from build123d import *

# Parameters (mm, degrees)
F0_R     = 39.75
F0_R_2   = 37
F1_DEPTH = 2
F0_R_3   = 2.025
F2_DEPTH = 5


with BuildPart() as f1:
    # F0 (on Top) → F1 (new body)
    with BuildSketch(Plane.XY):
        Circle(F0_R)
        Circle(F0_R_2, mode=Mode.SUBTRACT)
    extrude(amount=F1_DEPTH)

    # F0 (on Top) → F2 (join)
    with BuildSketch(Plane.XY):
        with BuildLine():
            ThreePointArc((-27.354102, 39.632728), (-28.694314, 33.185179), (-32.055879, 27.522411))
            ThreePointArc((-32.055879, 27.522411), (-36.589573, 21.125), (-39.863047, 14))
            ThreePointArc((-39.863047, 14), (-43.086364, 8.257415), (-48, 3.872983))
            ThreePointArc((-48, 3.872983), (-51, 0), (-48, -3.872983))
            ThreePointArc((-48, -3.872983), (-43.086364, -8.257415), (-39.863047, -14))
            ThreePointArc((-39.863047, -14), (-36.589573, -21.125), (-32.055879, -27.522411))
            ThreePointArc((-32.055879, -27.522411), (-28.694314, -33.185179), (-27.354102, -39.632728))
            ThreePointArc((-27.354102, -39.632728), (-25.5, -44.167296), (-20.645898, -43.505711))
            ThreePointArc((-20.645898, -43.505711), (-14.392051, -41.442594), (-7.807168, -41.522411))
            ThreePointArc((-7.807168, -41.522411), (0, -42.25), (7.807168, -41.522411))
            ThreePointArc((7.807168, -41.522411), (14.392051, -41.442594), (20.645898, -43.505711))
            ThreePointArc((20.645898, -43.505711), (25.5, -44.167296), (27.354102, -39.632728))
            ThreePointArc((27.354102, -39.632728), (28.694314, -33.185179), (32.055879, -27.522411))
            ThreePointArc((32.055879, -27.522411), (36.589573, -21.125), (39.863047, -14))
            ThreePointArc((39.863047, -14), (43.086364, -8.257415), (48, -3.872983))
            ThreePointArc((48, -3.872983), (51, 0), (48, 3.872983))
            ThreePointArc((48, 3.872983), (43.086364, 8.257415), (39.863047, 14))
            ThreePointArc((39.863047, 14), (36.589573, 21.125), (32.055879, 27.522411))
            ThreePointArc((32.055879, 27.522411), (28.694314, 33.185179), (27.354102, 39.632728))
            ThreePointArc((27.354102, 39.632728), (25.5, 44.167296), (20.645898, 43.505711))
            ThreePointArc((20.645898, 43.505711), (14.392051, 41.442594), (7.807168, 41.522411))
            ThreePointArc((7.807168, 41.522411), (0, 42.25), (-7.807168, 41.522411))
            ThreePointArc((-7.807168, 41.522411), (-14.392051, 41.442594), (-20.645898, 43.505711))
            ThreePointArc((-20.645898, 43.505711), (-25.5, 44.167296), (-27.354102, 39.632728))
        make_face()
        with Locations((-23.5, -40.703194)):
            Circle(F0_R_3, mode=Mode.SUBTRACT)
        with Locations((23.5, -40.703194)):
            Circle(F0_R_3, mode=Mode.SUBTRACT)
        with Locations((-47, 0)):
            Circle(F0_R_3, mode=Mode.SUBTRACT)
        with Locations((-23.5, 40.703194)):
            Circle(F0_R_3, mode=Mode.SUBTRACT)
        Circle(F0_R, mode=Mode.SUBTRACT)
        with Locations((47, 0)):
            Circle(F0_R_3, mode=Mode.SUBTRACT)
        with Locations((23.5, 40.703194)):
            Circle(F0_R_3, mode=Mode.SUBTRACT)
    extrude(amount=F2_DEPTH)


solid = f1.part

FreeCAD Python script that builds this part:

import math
import FreeCAD as App
import Part
import Sketcher
from FreeCAD import Vector

doc = App.newDocument("Part")
body = doc.addObject("PartDesign::Body", "Body")

# Sketch on XY plane
sketch1 = doc.addObject("Sketcher::SketchObject", "Sketch")
body.addObject(sketch1)
sketch1.AttachmentSupport = (doc.XY_Plane, [""])
sketch1.MapMode = "FlatFace"
sketch1.addGeometry(Part.Circle(Vector(0, 0, 0), Vector(0, 0, 1), 39.75), False)
sketch1.addGeometry(Part.Circle(Vector(0, 0, 0), Vector(0, 0, 1), 37), False)
sketch1.addConstraint(Sketcher.Constraint("Coincident", 0, 3, -1, 1))
sketch1.addConstraint(Sketcher.Constraint("Coincident", 1, 3, -1, 1))
sketch1.addConstraint(Sketcher.Constraint("Diameter", 1, 74.0))
sketch1.addConstraint(Sketcher.Constraint("Diameter", 0, 79.5))
pad1 = doc.addObject("PartDesign::Pad", "Pad")
body.addObject(pad1)
pad1.Profile = sketch1
pad1.Length = 2

# Sketch on XY plane
sketch2 = doc.addObject("Sketcher::SketchObject", "Sketch001")
body.addObject(sketch2)
sketch2.AttachmentSupport = (doc.XY_Plane, [""])
sketch2.MapMode = "FlatFace"
sketch2.addGeometry(Part.ArcOfCircle(Part.Circle(Vector(-47.338467, 40.423689, 0), Vector(0, 0, 1), 20.000011), math.radians(-40.170438), math.radians(-2.266525)), False)
sketch2.addGeometry(Part.ArcOfCircle(Part.Circle(Vector(0.000014, -0.000009, 0), Vector(0, 0, 1), 42.250016), math.radians(139.351403), math.radians(160.648594)), False)
sketch2.addGeometry(Part.ArcOfCircle(Part.Circle(Vector(-58.67716, 20.784457, 0), Vector(0, 0, 1), 19.999993), math.radians(-57.73349), math.radians(-19.829541)), False)
sketch2.addGeometry(Part.ArcOfCircle(Part.Circle(Vector(-47, 0, 0), Vector(0, 0, 1), 4), math.radians(104.477507), math.radians(255.522493)), False)
sketch2.addGeometry(Part.ArcOfCircle(Part.Circle(Vector(-58.67716, -20.784457, 0), Vector(0, 0, 1), 19.999993), math.radians(19.829541), math.radians(57.73349)), False)
sketch2.addGeometry(Part.ArcOfCircle(Part.Circle(Vector(0.000014, 0.000009, 0), Vector(0, 0, 1), 42.250016), math.radians(-160.648594), math.radians(-139.351403)), False)
sketch2.addGeometry(Part.ArcOfCircle(Part.Circle(Vector(-47.338467, -40.423689, 0), Vector(0, 0, 1), 20.000011), math.radians(2.266525), math.radians(40.170438)), False)
sketch2.addGeometry(Part.ArcOfCircle(Part.Circle(Vector(-23.5, -40.703194, 0), Vector(0, 0, 1), 4), math.radians(164.477509), math.radians(315.522496)), False)
sketch2.addGeometry(Part.ArcOfCircle(Part.Circle(Vector(-11.338709, -61.208153, 0), Vector(0, 0, 1), 20.000005), math.radians(79.829557), math.radians(117.733479)), False)
sketch2.addGeometry(Part.ArcOfCircle(Part.Circle(Vector(0, -0.000009, 0), Vector(0, 0, 1), 42.249991), math.radians(-100.648602), math.radians(-79.351398)), False)
sketch2.addGeometry(Part.ArcOfCircle(Part.Circle(Vector(11.338709, -61.208153, 0), Vector(0, 0, 1), 20.000005), math.radians(62.266521), math.radians(100.170443)), False)
sketch2.addGeometry(Part.ArcOfCircle(Part.Circle(Vector(23.5, -40.703194, 0), Vector(0, 0, 1), 4), math.radians(-135.522496), math.radians(15.522491)), False)
sketch2.addGeometry(Part.ArcOfCircle(Part.Circle(Vector(47.338467, -40.423689, 0), Vector(0, 0, 1), 20.000011), math.radians(139.829562), math.radians(177.733475)), False)
sketch2.addGeometry(Part.ArcOfCircle(Part.Circle(Vector(-0.000014, 0.000009, 0), Vector(0, 0, 1), 42.250016), math.radians(-40.648597), math.radians(-19.351406)), False)
sketch2.addGeometry(Part.ArcOfCircle(Part.Circle(Vector(58.67716, -20.784457, 0), Vector(0, 0, 1), 19.999993), math.radians(122.26651), math.radians(160.170459)), False)
sketch2.addGeometry(Part.ArcOfCircle(Part.Circle(Vector(47, 0, 0), Vector(0, 0, 1), 4), math.radians(-75.522493), math.radians(75.522493)), False)
sketch2.addGeometry(Part.ArcOfCircle(Part.Circle(Vector(58.67716, 20.784457, 0), Vector(0, 0, 1), 19.999993), math.radians(-160.170459), math.radians(-122.26651)), False)
sketch2.addGeometry(Part.ArcOfCircle(Part.Circle(Vector(-0.000014, -0.000009, 0), Vector(0, 0, 1), 42.250016), math.radians(19.351406), math.radians(40.648597)), False)
sketch2.addGeometry(Part.ArcOfCircle(Part.Circle(Vector(47.338467, 40.423689, 0), Vector(0, 0, 1), 20.000011), math.radians(-177.733475), math.radians(-139.829562)), False)
sketch2.addGeometry(Part.ArcOfCircle(Part.Circle(Vector(23.5, 40.703194, 0), Vector(0, 0, 1), 4), math.radians(-15.522491), math.radians(135.522496)), False)
sketch2.addGeometry(Part.ArcOfCircle(Part.Circle(Vector(11.338709, 61.208153, 0), Vector(0, 0, 1), 20.000005), math.radians(-100.170443), math.radians(-62.266521)), False)
sketch2.addGeometry(Part.ArcOfCircle(Part.Circle(Vector(0, 0.000009, 0), Vector(0, 0, 1), 42.249991), math.radians(79.351398), math.radians(100.648602)), False)
sketch2.addGeometry(Part.ArcOfCircle(Part.Circle(Vector(-11.338709, 61.208153, 0), Vector(0, 0, 1), 20.000005), math.radians(-117.733479), math.radians(-79.829557)), False)
sketch2.addGeometry(Part.ArcOfCircle(Part.Circle(Vector(-23.5, 40.703194, 0), Vector(0, 0, 1), 4), math.radians(44.477504), math.radians(195.522491)), False)
sketch2.addGeometry(Part.Circle(Vector(-23.5, -40.703194, 0), Vector(0, 0, 1), 2.025), False)
sketch2.addGeometry(Part.Circle(Vector(23.5, -40.703194, 0), Vector(0, 0, 1), 2.025), False)
sketch2.addGeometry(Part.Circle(Vector(-47, 0, 0), Vector(0, 0, 1), 2.025), False)
sketch2.addGeometry(Part.Circle(Vector(-23.5, 40.703194, 0), Vector(0, 0, 1), 2.025), False)
sketch2.addGeometry(Part.Circle(Vector(0, 0, 0), Vector(0, 0, 1), 39.75), False)
sketch2.addGeometry(Part.Circle(Vector(47, 0, 0), Vector(0, 0, 1), 2.025), False)
sketch2.addGeometry(Part.Circle(Vector(23.5, 40.703194, 0), Vector(0, 0, 1), 2.025), False)
sketch2.addConstraint(Sketcher.Constraint("Coincident", 0, 1, 1, 1))
sketch2.addConstraint(Sketcher.Constraint("Coincident", 1, 2, 2, 2))
sketch2.addConstraint(Sketcher.Constraint("Coincident", 2, 1, 3, 1))
sketch2.addConstraint(Sketcher.Constraint("Coincident", 3, 2, 4, 2))
sketch2.addConstraint(Sketcher.Constraint("Coincident", 4, 1, 5, 1))
sketch2.addConstraint(Sketcher.Constraint("Coincident", 5, 2, 6, 2))
sketch2.addConstraint(Sketcher.Constraint("Coincident", 6, 1, 7, 1))
sketch2.addConstraint(Sketcher.Constraint("Coincident", 7, 2, 8, 2))
sketch2.addConstraint(Sketcher.Constraint("Coincident", 8, 1, 9, 1))
sketch2.addConstraint(Sketcher.Constraint("Coincident", 9, 2, 10, 2))
sketch2.addConstraint(Sketcher.Constraint("Coincident", 10, 1, 11, 1))
sketch2.addConstraint(Sketcher.Constraint("Coincident", 11, 2, 12, 2))
sketch2.addConstraint(Sketcher.Constraint("Coincident", 12, 1, 13, 1))
sketch2.addConstraint(Sketcher.Constraint("Coincident", 13, 2, 14, 2))
sketch2.addConstraint(Sketcher.Constraint("Coincident", 14, 1, 15, 1))
sketch2.addConstraint(Sketcher.Constraint("Coincident", 15, 2, 16, 2))
sketch2.addConstraint(Sketcher.Constraint("Coincident", 16, 1, 17, 1))
sketch2.addConstraint(Sketcher.Constraint("Coincident", 17, 2, 18, 2))
sketch2.addConstraint(Sketcher.Constraint("Coincident", 18, 1, 19, 1))
sketch2.addConstraint(Sketcher.Constraint("Coincident", 19, 2, 20, 2))
sketch2.addConstraint(Sketcher.Constraint("Coincident", 20, 1, 21, 1))
sketch2.addConstraint(Sketcher.Constraint("Coincident", 21, 2, 22, 2))
sketch2.addConstraint(Sketcher.Constraint("Coincident", 22, 1, 23, 1))
sketch2.addConstraint(Sketcher.Constraint("Coincident", 23, 2, 0, 2))
sketch2.addConstraint(Sketcher.Constraint("Coincident", 9, 3, -1, 1))
sketch2.addConstraint(Sketcher.Constraint("Coincident", 21, 3, -1, 1))
sketch2.addConstraint(Sketcher.Constraint("Coincident", 28, 3, -1, 1))
sketch2.addConstraint(Sketcher.Constraint("Coincident", 24, 3, 7, 3))
sketch2.addConstraint(Sketcher.Constraint("Coincident", 25, 3, 11, 3))
sketch2.addConstraint(Sketcher.Constraint("Coincident", 26, 3, 3, 3))
sketch2.addConstraint(Sketcher.Constraint("Coincident", 27, 3, 23, 3))
sketch2.addConstraint(Sketcher.Constraint("Coincident", 29, 3, 15, 3))
sketch2.addConstraint(Sketcher.Constraint("Coincident", 30, 3, 19, 3))
sketch2.addConstraint(Sketcher.Constraint("PointOnObject", 3, 3, -1))
sketch2.addConstraint(Sketcher.Constraint("PointOnObject", 15, 3, -1))
sketch2.addConstraint(Sketcher.Constraint("Radius", 3, 4.0))
sketch2.addConstraint(Sketcher.Constraint("Radius", 7, 4.0))
sketch2.addConstraint(Sketcher.Constraint("Radius", 11, 4.0))
sketch2.addConstraint(Sketcher.Constraint("Radius", 15, 4.0))
sketch2.addConstraint(Sketcher.Constraint("Radius", 19, 4.0))
sketch2.addConstraint(Sketcher.Constraint("Radius", 23, 4.0))
sketch2.addConstraint(Sketcher.Constraint("Diameter", 28, 79.5))
sketch2.addConstraint(Sketcher.Constraint("Diameter", 24, 4.05))
sketch2.addConstraint(Sketcher.Constraint("Diameter", 25, 4.05))
sketch2.addConstraint(Sketcher.Constraint("Diameter", 26, 4.05))
sketch2.addConstraint(Sketcher.Constraint("Diameter", 27, 4.05))
sketch2.addConstraint(Sketcher.Constraint("Diameter", 29, 4.05))
sketch2.addConstraint(Sketcher.Constraint("Diameter", 30, 4.05))
sketch2.addConstraint(Sketcher.Constraint("DistanceX", 3, 3, -1, 1, 47.0))
sketch2.addConstraint(Sketcher.Constraint("DistanceX", -1, 1, 15, 3, 47.0))
sketch2.addConstraint(Sketcher.Constraint("DistanceY", -1, 1, 1, 2, 14.0))
sketch2.addConstraint(Sketcher.Constraint("DistanceX", 2, 1, -1, 1, 48.0))
sketch2.addConstraint(Sketcher.Constraint("DistanceX", 3, 2, -1, 1, 48.0))
sketch2.addConstraint(Sketcher.Constraint("DistanceY", 4, 1, -1, 1, 14.0))
sketch2.addConstraint(Sketcher.Constraint("DistanceY", 13, 2, -1, 1, 14.0))
sketch2.addConstraint(Sketcher.Constraint("DistanceX", -1, 1, 14, 1, 48.0))
sketch2.addConstraint(Sketcher.Constraint("DistanceX", -1, 1, 15, 2, 48.0))
sketch2.addConstraint(Sketcher.Constraint("DistanceY", -1, 1, 16, 1, 14.0))
sketch2.addConstraint(Sketcher.Constraint("DistanceX", 7, 3, 11, 3, 47.0))
sketch2.addConstraint(Sketcher.Constraint("DistanceX", 7, 3, -1, 1, 23.5))
sketch2.addConstraint(Sketcher.Constraint("DistanceX", -1, 1, 19, 3, 23.5))
sketch2.addConstraint(Sketcher.Constraint("DistanceX", 23, 3, -1, 1, 23.5))
sketch2.addConstraint(Sketcher.Constraint("Radius", 0, 20.000011))
sketch2.addConstraint(Sketcher.Constraint("Radius", 6, 20.000011))
sketch2.addConstraint(Sketcher.Constraint("Radius", 9, 42.249991))
sketch2.addConstraint(Sketcher.Constraint("Radius", 12, 20.000011))
sketch2.addConstraint(Sketcher.Constraint("Radius", 18, 20.000011))
sketch2.addConstraint(Sketcher.Constraint("Radius", 21, 42.249991))
sketch2.addConstraint(Sketcher.Constraint("Radius", 1, 42.250016))
sketch2.addConstraint(Sketcher.Constraint("Radius", 2, 19.999993))
sketch2.addConstraint(Sketcher.Constraint("Radius", 4, 19.999993))
sketch2.addConstraint(Sketcher.Constraint("Radius", 5, 42.250016))
sketch2.addConstraint(Sketcher.Constraint("Radius", 8, 20.000005))
sketch2.addConstraint(Sketcher.Constraint("Radius", 10, 20.000005))
sketch2.addConstraint(Sketcher.Constraint("Radius", 13, 42.250016))
sketch2.addConstraint(Sketcher.Constraint("Radius", 14, 19.999993))
sketch2.addConstraint(Sketcher.Constraint("Radius", 16, 19.999993))
sketch2.addConstraint(Sketcher.Constraint("Radius", 17, 42.250016))
sketch2.addConstraint(Sketcher.Constraint("Radius", 20, 20.000005))
sketch2.addConstraint(Sketcher.Constraint("Radius", 22, 20.000005))
sketch2.addConstraint(Sketcher.Constraint("DistanceX", 7, 2, -1, 1, 20.645898))
sketch2.addConstraint(Sketcher.Constraint("DistanceX", -1, 1, 10, 1, 20.645898))
sketch2.addConstraint(Sketcher.Constraint("DistanceX", -1, 1, 19, 2, 20.645898))
sketch2.addConstraint(Sketcher.Constraint("DistanceX", 22, 1, -1, 1, 20.645898))
sketch2.addConstraint(Sketcher.Constraint("DistanceX", 6, 1, 7, 3, 3.854102))
sketch2.addConstraint(Sketcher.Constraint("DistanceY", 7, 2, 5, 2, 15.9833))
sketch2.addConstraint(Sketcher.Constraint("DistanceY", 7, 2, 8, 1, 1.9833))
sketch2.addConstraint(Sketcher.Constraint("DistanceY", 10, 1, 9, 2, 1.9833))
sketch2.addConstraint(Sketcher.Constraint("DistanceX", 11, 3, 11, 2, 3.854102))
sketch2.addConstraint(Sketcher.Constraint("DistanceY", 10, 1, 12, 1, 15.9833))
sketch2.addConstraint(Sketcher.Constraint("DistanceX", 19, 3, 18, 1, 3.854102))
sketch2.addConstraint(Sketcher.Constraint("DistanceY", 17, 2, 19, 2, 15.9833))
sketch2.addConstraint(Sketcher.Constraint("DistanceY", 20, 1, 19, 2, 1.9833))
sketch2.addConstraint(Sketcher.Constraint("DistanceY", 21, 2, 22, 1, 1.9833))
sketch2.addConstraint(Sketcher.Constraint("DistanceY", 0, 1, 22, 1, 15.9833))
sketch2.addConstraint(Sketcher.Constraint("DistanceX", 23, 2, 23, 3, 3.854102))
sketch2.addConstraint(Sketcher.Constraint("DistanceY", -1, 1, 0, 3, 40.423689))
sketch2.addConstraint(Sketcher.Constraint("DistanceX", 2, 3, -1, 1, 58.67716))
sketch2.addConstraint(Sketcher.Constraint("DistanceX", 4, 3, -1, 1, 58.67716))
sketch2.addConstraint(Sketcher.Constraint("DistanceY", 6, 3, -1, 1, 40.423689))
sketch2.addConstraint(Sketcher.Constraint("DistanceX", 8, 3, -1, 1, 11.338709))
sketch2.addConstraint(Sketcher.Constraint("DistanceX", -1, 1, 10, 3, 11.338709))
sketch2.addConstraint(Sketcher.Constraint("DistanceY", 12, 3, -1, 1, 40.423689))
sketch2.addConstraint(Sketcher.Constraint("DistanceX", -1, 1, 14, 3, 58.67716))
sketch2.addConstraint(Sketcher.Constraint("DistanceX", -1, 1, 16, 3, 58.67716))
sketch2.addConstraint(Sketcher.Constraint("DistanceY", -1, 1, 18, 3, 40.423689))
sketch2.addConstraint(Sketcher.Constraint("DistanceX", -1, 1, 20, 3, 11.338709))
sketch2.addConstraint(Sketcher.Constraint("DistanceX", 22, 3, -1, 1, 11.338709))
pad2 = doc.addObject("PartDesign::Pad", "Pad001")
body.addObject(pad2)
pad2.Profile = sketch2
pad2.Length = 5

doc.recompute()
